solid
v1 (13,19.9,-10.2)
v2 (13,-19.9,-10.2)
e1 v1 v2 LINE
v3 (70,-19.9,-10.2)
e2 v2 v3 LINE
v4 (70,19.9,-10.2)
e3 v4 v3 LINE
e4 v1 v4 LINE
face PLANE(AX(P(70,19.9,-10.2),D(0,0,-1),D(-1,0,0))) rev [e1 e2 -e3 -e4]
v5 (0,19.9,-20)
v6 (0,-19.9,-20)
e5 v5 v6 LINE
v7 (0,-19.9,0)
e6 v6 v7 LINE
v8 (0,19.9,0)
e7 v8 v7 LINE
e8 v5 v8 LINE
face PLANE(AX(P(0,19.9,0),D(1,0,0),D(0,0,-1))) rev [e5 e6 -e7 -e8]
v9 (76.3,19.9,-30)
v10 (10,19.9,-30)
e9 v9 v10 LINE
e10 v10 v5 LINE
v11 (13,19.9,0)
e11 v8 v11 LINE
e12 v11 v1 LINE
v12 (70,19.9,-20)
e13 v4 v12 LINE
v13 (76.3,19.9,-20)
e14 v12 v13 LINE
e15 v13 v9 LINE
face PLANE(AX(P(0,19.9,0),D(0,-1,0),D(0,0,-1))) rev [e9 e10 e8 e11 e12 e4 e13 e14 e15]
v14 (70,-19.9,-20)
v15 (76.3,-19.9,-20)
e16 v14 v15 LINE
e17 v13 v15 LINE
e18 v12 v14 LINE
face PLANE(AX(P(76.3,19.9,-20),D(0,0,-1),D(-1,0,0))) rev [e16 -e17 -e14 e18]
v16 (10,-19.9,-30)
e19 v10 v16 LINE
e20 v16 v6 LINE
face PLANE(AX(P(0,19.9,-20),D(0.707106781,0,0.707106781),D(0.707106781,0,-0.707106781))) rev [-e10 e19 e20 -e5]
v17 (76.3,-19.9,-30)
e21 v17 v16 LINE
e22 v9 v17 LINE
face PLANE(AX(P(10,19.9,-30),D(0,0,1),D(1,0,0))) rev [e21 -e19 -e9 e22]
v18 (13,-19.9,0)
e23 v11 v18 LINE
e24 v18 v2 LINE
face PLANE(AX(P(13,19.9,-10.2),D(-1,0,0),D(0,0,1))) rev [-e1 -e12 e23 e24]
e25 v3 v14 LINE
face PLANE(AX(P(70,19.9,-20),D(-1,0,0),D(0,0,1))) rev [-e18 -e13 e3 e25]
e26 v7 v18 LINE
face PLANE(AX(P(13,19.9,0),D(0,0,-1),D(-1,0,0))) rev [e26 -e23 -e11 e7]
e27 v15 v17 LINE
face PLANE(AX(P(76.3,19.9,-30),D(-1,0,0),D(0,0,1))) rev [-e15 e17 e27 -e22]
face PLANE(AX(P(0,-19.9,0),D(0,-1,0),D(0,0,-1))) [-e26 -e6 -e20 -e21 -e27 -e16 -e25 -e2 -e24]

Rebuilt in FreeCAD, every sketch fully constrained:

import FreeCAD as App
import Part
import Sketcher
Q = App.Units.Quantity

doc = App.newDocument("Part")
body = doc.addObject("PartDesign::Body", "Body")

# Sketch on XZ plane
sketch1 = body.newObject("Sketcher::SketchObject", "Sketch")
sketch1.AttachmentSupport = (doc.getObject("XZ_Plane"), [""])
sketch1.MapMode = "FlatFace"
sketch1.addGeometry([
    Part.LineSegment(App.Vector(0, -20, 0), App.Vector(0, 0, 0)),  # 0
    Part.LineSegment(App.Vector(0, 0, 0), App.Vector(13, 0, 0)),  # 1
    Part.LineSegment(App.Vector(13, 0, 0), App.Vector(13, -10, 0)),  # 2
    Part.LineSegment(App.Vector(13, -10, 0), App.Vector(70, -10, 0)),  # 3
    Part.LineSegment(App.Vector(70, -10, 0), App.Vector(70, -20, 0)),  # 4
    Part.LineSegment(App.Vector(70, -20, 0), App.Vector(76, -20, 0)),  # 5
    Part.LineSegment(App.Vector(76, -20, 0), App.Vector(76, -30, 0)),  # 6
    Part.LineSegment(App.Vector(76, -30, 0), App.Vector(10, -30, 0)),  # 7
    Part.LineSegment(App.Vector(10, -30, 0), App.Vector(0, -20, 0)),  # 8
], False)
sketch1.addConstraint([
    Sketcher.Constraint("Coincident", 0, 2, 1, 1),
    Sketcher.Constraint("Coincident", 1, 2, 2, 1),
    Sketcher.Constraint("Coincident", 2, 2, 3, 1),
    Sketcher.Constraint("Coincident", 3, 2, 4, 1),
    Sketcher.Constraint("Coincident", 4, 2, 5, 1),
    Sketcher.Constraint("Coincident", 5, 2, 6, 1),
    Sketcher.Constraint("Coincident", 6, 2, 7, 1),
    Sketcher.Constraint("Coincident", 7, 2, 8, 1),
    Sketcher.Constraint("Coincident", 8, 2, 0, 1),
    Sketcher.Constraint("Vertical", 0),
    Sketcher.Constraint("Horizontal", 1),
    Sketcher.Constraint("Vertical", 2),
    Sketcher.Constraint("Horizontal", 3),
    Sketcher.Constraint("Vertical", 4),
    Sketcher.Constraint("Horizontal", 5),
    Sketcher.Constraint("Vertical", 6),
    Sketcher.Constraint("Horizontal", 7),
    Sketcher.Constraint("Coincident", 0, 2, -1, 1),
    Sketcher.Constraint("Horizontal", 5, 2, 8, 2),
    Sketcher.Constraint("DistanceX", 1, 1, 1, 2, Q("13 mm")),
    Sketcher.Constraint("DistanceX", 3, 1, 3, 2, Q("57 mm")),
    Sketcher.Constraint("DistanceY", 0, 1, 0, 2, Q("20 mm")),
    Sketcher.Constraint("DistanceY", 6, 2, 6, 1, Q("10 mm")),
    Sketcher.Constraint("Angle", 8, Q("135 deg")),
    Sketcher.Constraint("DistanceX", 5, 1, 5, 2, Q("6.3 mm")),
    Sketcher.Constraint("DistanceY", 2, 2, 2, 1, Q("10.2 mm")),
])
pad1 = body.newObject("PartDesign::Pad", "Pad")
pad1.Profile = sketch1
pad1.Length = 39.8
pad1.Midplane = True

doc.recompute()
